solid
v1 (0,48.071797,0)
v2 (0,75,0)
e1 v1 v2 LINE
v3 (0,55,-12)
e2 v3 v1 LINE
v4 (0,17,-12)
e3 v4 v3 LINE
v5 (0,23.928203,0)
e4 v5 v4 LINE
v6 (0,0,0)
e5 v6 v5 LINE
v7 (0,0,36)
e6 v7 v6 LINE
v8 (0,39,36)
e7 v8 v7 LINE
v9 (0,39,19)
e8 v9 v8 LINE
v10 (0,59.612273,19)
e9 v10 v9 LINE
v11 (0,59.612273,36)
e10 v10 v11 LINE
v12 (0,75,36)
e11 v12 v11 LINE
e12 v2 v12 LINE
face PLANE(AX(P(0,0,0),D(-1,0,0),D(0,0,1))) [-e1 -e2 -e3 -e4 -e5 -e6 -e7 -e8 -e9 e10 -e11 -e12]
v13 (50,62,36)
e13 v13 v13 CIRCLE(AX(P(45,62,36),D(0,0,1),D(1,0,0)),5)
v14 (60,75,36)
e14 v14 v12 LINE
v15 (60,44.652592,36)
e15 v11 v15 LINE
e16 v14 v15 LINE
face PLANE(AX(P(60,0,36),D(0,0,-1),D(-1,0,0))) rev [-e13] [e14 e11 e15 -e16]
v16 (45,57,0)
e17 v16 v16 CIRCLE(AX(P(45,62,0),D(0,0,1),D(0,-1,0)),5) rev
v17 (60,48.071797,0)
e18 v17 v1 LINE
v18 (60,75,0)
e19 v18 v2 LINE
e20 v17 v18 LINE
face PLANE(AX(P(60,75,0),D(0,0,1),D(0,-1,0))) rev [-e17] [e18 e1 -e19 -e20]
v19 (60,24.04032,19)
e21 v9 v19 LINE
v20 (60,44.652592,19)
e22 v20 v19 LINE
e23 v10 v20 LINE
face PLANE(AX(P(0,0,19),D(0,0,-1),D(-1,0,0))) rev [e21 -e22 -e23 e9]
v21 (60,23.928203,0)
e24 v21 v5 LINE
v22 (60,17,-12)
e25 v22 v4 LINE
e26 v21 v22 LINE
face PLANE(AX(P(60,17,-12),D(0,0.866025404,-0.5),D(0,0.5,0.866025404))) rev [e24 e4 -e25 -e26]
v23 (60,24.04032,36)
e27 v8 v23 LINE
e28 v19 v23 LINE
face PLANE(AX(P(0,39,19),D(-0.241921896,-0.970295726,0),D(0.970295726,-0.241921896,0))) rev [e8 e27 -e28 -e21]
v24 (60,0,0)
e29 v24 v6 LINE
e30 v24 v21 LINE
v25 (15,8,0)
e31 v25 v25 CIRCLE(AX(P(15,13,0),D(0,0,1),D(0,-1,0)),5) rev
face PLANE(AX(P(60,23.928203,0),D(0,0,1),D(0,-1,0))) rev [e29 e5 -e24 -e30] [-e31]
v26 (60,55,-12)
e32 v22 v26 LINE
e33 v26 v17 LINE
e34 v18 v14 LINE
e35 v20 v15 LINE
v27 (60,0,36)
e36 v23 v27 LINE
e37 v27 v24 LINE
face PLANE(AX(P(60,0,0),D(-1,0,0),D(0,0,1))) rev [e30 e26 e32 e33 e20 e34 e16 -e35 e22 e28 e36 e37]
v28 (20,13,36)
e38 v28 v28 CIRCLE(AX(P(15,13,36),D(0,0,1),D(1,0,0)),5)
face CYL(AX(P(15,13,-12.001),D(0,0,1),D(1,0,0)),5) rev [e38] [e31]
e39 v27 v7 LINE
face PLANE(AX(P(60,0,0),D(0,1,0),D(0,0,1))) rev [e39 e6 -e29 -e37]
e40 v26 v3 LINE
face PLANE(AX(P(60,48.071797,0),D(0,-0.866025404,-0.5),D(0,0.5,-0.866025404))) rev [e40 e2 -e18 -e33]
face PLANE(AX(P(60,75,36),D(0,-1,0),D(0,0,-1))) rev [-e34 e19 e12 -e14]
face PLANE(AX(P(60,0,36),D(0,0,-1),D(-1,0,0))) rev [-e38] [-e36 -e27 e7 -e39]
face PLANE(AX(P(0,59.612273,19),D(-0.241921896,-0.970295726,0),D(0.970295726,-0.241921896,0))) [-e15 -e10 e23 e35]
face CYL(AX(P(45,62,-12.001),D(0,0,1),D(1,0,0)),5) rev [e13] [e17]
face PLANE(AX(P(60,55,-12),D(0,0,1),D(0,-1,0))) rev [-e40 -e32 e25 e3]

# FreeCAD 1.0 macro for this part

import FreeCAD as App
import Part
import Sketcher

V = App.Vector
Q = App.Units.Quantity


def add_polygon(sketch, points):
    """Adds a closed chain of lines whose ends are joined by coincident constraints."""
    first, n = sketch.GeometryCount, len(points)
    for a, b in zip(points, points[1:] + points[:1]):
        sketch.addGeometry(Part.LineSegment(App.Vector(*a, 0), App.Vector(*b, 0)), False)
    for i in range(n):
        sketch.addConstraint(Sketcher.Constraint("Coincident", first + i, 2, first + (i + 1) % n, 1))

doc = App.newDocument("Part")
body = doc.addObject("PartDesign::Body", "Body")

sketch1 = body.newObject("Sketcher::SketchObject", "Sketch")
sketch1.AttachmentSupport = (doc.getObject("YZ_Plane"), [""])
sketch1.MapMode = "FlatFace"
add_polygon(sketch1, [(75, 0), (75, 36), (0, 36), (0, 0), (24, 0), (17, -12), (55, -12), (48, 0)])
sketch1.addConstraint(Sketcher.Constraint("Vertical", 0))
sketch1.addConstraint(Sketcher.Constraint("Horizontal", 1))
sketch1.addConstraint(Sketcher.Constraint("Vertical", 2))
sketch1.addConstraint(Sketcher.Constraint("Horizontal", 3))
sketch1.addConstraint(Sketcher.Constraint("Horizontal", 5))
sketch1.addConstraint(Sketcher.Constraint("Horizontal", 7))
sketch1.addConstraint(Sketcher.Constraint("Coincident", 2, 2, -1, 1))
sketch1.addConstraint(Sketcher.Constraint("PointOnObject", 6, 2, -1))
sketch1.addConstraint(Sketcher.Constraint("Equal", 4, 6))
sketch1.addConstraint(Sketcher.Constraint("DistanceX", 1, 2, 1, 1, Q("75 mm")))
sketch1.addConstraint(Sketcher.Constraint("DistanceX", 5, 1, 5, 2, Q("38 mm")))
sketch1.addConstraint(Sketcher.Constraint("DistanceY", 0, 1, 0, 2, Q("36 mm")))
sketch1.addConstraint(Sketcher.Constraint("Angle", 4, Q("-120 deg")))
sketch1.addConstraint(Sketcher.Constraint("DistanceX", -1, 1, 4, 2, Q("17 mm")))
sketch1.addConstraint(Sketcher.Constraint("DistanceY", 4, 2, -1, 1, Q("12 mm")))
pad1 = body.newObject("PartDesign::Pad", "Pad")
pad1.Profile = sketch1
pad1.Length = 60

sketch2 = body.newObject("Sketcher::SketchObject", "Sketch001")
sketch2.AttachmentSupport = (doc.getObject("XY_Plane"), [""])
sketch2.MapMode = "FlatFace"
sketch2.AttachmentOffset = App.Placement(V(0, 0, 36), App.Rotation())
add_polygon(sketch2, [(60, 45), (0, 60), (0, 39), (60, 24)])
sketch2.addConstraint(Sketcher.Constraint("Vertical", 1))
sketch2.addConstraint(Sketcher.Constraint("Vertical", 3))
sketch2.addConstraint(Sketcher.Constraint("PointOnObject", 0, 2, -2))
sketch2.addConstraint(Sketcher.Constraint("Parallel", 0, 2))
sketch2.addConstraint(Sketcher.Constraint("Angle", 0, Q("166 deg")))
sketch2.addConstraint(Sketcher.Constraint("DistanceY", -1, 1, 1, 2, Q("39 mm")))
sketch2.addConstraint(Sketcher.Constraint("DistanceX", -1, 1, 2, 2, Q("60 mm")))
sketch2.addConstraint(Sketcher.Constraint("DistanceY", 1, 2, 1, 1, Q("20.612273 mm")))
pocket1 = body.newObject("PartDesign::Pocket", "Pocket")
pocket1.Profile = sketch2
pocket1.Length = 17

sketch3 = body.newObject("Sketcher::SketchObject", "Sketch002")
sketch3.AttachmentSupport = (doc.getObject("XY_Plane"), [""])
sketch3.MapMode = "FlatFace"
sketch3.AttachmentOffset = App.Placement(V(0, 0, 36), App.Rotation())
sketch3.addGeometry(Part.Circle(V(45, 62, 0), V(0, 0, 1), 5), False)
sketch3.addConstraint(Sketcher.Constraint("Diameter", 0, Q("10 mm")))
sketch3.addConstraint(Sketcher.Constraint("DistanceX", -1, 1, 0, 3, Q("45 mm")))
sketch3.addConstraint(Sketcher.Constraint("DistanceY", -1, 1, 0, 3, Q("62 mm")))
pocket2 = body.newObject("PartDesign::Pocket", "Pocket001")
pocket2.Profile = sketch3
pocket2.Type = "UpToFirst"

sketch4 = body.newObject("Sketcher::SketchObject", "Sketch003")
sketch4.AttachmentSupport = (doc.getObject("XY_Plane"), [""])
sketch4.MapMode = "FlatFace"
sketch4.AttachmentOffset = App.Placement(V(0, 0, 36), App.Rotation())
sketch4.addGeometry(Part.Circle(V(15, 13, 0), V(0, 0, 1), 5), False)
sketch4.addConstraint(Sketcher.Constraint("Diameter", 0, Q("10 mm")))
sketch4.addConstraint(Sketcher.Constraint("DistanceX", -1, 1, 0, 3, Q("15 mm")))
sketch4.addConstraint(Sketcher.Constraint("DistanceY", -1, 1, 0, 3, Q("13 mm")))
pocket3 = body.newObject("PartDesign::Pocket", "Pocket002")
pocket3.Profile = sketch4
pocket3.Type = "UpToFirst"

doc.recompute()
